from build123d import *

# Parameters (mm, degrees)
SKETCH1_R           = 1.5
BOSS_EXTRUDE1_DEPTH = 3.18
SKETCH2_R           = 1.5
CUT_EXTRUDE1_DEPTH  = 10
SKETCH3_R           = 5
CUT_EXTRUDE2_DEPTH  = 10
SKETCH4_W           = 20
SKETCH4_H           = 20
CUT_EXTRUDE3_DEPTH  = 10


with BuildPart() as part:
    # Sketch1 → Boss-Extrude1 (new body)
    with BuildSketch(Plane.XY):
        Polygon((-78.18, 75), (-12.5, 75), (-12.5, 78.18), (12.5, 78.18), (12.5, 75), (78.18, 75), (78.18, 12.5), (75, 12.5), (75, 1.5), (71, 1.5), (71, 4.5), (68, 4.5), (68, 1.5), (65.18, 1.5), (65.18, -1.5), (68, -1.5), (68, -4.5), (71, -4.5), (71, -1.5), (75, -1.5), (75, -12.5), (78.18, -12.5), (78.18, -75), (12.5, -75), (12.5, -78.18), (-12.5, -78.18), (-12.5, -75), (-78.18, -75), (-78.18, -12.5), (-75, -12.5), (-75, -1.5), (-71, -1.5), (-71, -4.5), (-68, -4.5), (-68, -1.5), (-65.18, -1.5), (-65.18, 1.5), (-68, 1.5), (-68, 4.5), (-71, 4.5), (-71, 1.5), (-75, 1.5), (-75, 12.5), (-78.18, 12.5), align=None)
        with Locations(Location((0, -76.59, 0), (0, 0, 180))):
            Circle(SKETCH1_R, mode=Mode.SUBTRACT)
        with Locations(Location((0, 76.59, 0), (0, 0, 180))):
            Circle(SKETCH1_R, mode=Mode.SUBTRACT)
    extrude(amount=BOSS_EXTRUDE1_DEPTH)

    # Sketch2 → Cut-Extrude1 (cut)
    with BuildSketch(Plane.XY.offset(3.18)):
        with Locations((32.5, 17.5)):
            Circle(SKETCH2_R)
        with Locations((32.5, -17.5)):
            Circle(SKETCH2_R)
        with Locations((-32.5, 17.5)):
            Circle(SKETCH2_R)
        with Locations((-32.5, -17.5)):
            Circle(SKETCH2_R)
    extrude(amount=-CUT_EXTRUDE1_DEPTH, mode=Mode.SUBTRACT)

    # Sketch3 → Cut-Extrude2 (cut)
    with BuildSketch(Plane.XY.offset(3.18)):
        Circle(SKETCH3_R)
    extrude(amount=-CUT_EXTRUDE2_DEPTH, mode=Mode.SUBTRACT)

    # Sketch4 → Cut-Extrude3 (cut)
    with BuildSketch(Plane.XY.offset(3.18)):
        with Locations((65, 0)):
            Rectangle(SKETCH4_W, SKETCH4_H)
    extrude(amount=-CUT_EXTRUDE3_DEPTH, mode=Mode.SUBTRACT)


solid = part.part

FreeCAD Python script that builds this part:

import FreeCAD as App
import Part
import Sketcher

V = App.Vector
Q = App.Units.Quantity

doc = App.newDocument("Part")
body = doc.addObject("PartDesign::Body", "Body")

# Sketch on XY plane
sketch1 = body.newObject("Sketcher::SketchObject", "Sketch")
sketch1.AttachmentSupport = (doc.getObject("XY_Plane"), [""])
sketch1.MapMode = "FlatFace"
sketch1.addGeometry(Part.LineSegment(V(-12.5, 75, 0), V(-78.2, 75, 0)), False)
sketch1.addGeometry(Part.LineSegment(V(-78.2, 75, 0), V(-78.2, 12.5, 0)), False)
sketch1.addGeometry(Part.LineSegment(V(-78.2, 12.5, 0), V(-75, 12.5, 0)), False)
sketch1.addGeometry(Part.LineSegment(V(-75, 12.5, 0), V(-75, 1.5, 0)), False)
sketch1.addGeometry(Part.LineSegment(V(-75, 1.5, 0), V(-71, 1.5, 0)), False)
sketch1.addGeometry(Part.LineSegment(V(-71, 1.5, 0), V(-71, 4.5, 0)), False)
sketch1.addGeometry(Part.LineSegment(V(-71, 4.5, 0), V(-68, 4.5, 0)), False)
sketch1.addGeometry(Part.LineSegment(V(-68, 4.5, 0), V(-68, 1.5, 0)), False)
sketch1.addGeometry(Part.LineSegment(V(-68, 1.5, 0), V(-65.2, 1.5, 0)), False)
sketch1.addGeometry(Part.LineSegment(V(-65.2, 1.5, 0), V(-65.2, -1.5, 0)), False)
sketch1.addGeometry(Part.LineSegment(V(-65.2, -1.5, 0), V(-68, -1.5, 0)), False)
sketch1.addGeometry(Part.LineSegment(V(-68, -1.5, 0), V(-68, -4.5, 0)), False)
sketch1.addGeometry(Part.LineSegment(V(-68, -4.5, 0), V(-71, -4.5, 0)), False)
sketch1.addGeometry(Part.LineSegment(V(-71, -4.5, 0), V(-71, -1.5, 0)), False)
sketch1.addGeometry(Part.LineSegment(V(-71, -1.5, 0), V(-75, -1.5, 0)), False)
sketch1.addGeometry(Part.LineSegment(V(-75, -1.5, 0), V(-75, -12.5, 0)), False)
sketch1.addGeometry(Part.LineSegment(V(-75, -12.5, 0), V(-78.2, -12.5, 0)), False)
sketch1.addGeometry(Part.LineSegment(V(-78.2, -12.5, 0), V(-78.2, -75, 0)), False)
sketch1.addGeometry(Part.LineSegment(V(-78.2, -75, 0), V(-12.5, -75, 0)), False)
sketch1.addGeometry(Part.LineSegment(V(-12.5, -75, 0), V(-12.5, -78.2, 0)), False)
sketch1.addGeometry(Part.LineSegment(V(-12.5, -78.2, 0), V(12.5, -78.2, 0)), False)
sketch1.addGeometry(Part.LineSegment(V(12.5, -78.2, 0), V(12.5, -75, 0)), False)
sketch1.addGeometry(Part.LineSegment(V(12.5, -75, 0), V(78.2, -75, 0)), False)
sketch1.addGeometry(Part.LineSegment(V(78.2, -75, 0), V(78.2, -12.5, 0)), False)
sketch1.addGeometry(Part.LineSegment(V(78.2, -12.5, 0), V(75, -12.5, 0)), False)
sketch1.addGeometry(Part.LineSegment(V(75, -12.5, 0), V(75, -1.5, 0)), False)
sketch1.addGeometry(Part.LineSegment(V(75, -1.5, 0), V(71, -1.5, 0)), False)
sketch1.addGeometry(Part.LineSegment(V(71, -1.5, 0), V(71, -4.5, 0)), False)
sketch1.addGeometry(Part.LineSegment(V(71, -4.5, 0), V(68, -4.5, 0)), False)
sketch1.addGeometry(Part.LineSegment(V(68, -4.5, 0), V(68, -1.5, 0)), False)
sketch1.addGeometry(Part.LineSegment(V(68, -1.5, 0), V(65.2, -1.5, 0)), False)
sketch1.addGeometry(Part.LineSegment(V(65.2, -1.5, 0), V(65.2, 1.5, 0)), False)
sketch1.addGeometry(Part.LineSegment(V(65.2, 1.5, 0), V(68, 1.5, 0)), False)
sketch1.addGeometry(Part.LineSegment(V(68, 1.5, 0), V(68, 4.5, 0)), False)
sketch1.addGeometry(Part.LineSegment(V(68, 4.5, 0), V(71, 4.5, 0)), False)
sketch1.addGeometry(Part.LineSegment(V(71, 4.5, 0), V(71, 1.5, 0)), False)
sketch1.addGeometry(Part.LineSegment(V(71, 1.5, 0), V(75, 1.5, 0)), False)
sketch1.addGeometry(Part.LineSegment(V(75, 1.5, 0), V(75, 12.5, 0)), False)
sketch1.addGeometry(Part.LineSegment(V(75, 12.5, 0), V(78.2, 12.5, 0)), False)
sketch1.addGeometry(Part.LineSegment(V(78.2, 12.5, 0), V(78.2, 75, 0)), False)
sketch1.addGeometry(Part.LineSegment(V(78.2, 75, 0), V(12.5, 75, 0)), False)
sketch1.addGeometry(Part.LineSegment(V(12.5, 75, 0), V(12.5, 78.2, 0)), False)
sketch1.addGeometry(Part.LineSegment(V(12.5, 78.2, 0), V(-12.5, 78.2, 0)), False)
sketch1.addGeometry(Part.LineSegment(V(-12.5, 78.2, 0), V(-12.5, 75, 0)), False)
sketch1.addGeometry(Part.Circle(V(0, -76.6, 0), V(0, 0, 1), 1.5), False)
sketch1.addGeometry(Part.Circle(V(0, 76.6, 0), V(0, 0, 1), 1.5), False)
sketch1.addConstraint(Sketcher.Constraint("Coincident", 0, 2, 1, 1))
sketch1.addConstraint(Sketcher.Constraint("Coincident", 1, 2, 2, 1))
sketch1.addConstraint(Sketcher.Constraint("Coincident", 2, 2, 3, 1))
sketch1.addConstraint(Sketcher.Constraint("Coincident", 3, 2, 4, 1))
sketch1.addConstraint(Sketcher.Constraint("Coincident", 4, 2, 5, 1))
sketch1.addConstraint(Sketcher.Constraint("Coincident", 5, 2, 6, 1))
sketch1.addConstraint(Sketcher.Constraint("Coincident", 6, 2, 7, 1))
sketch1.addConstraint(Sketcher.Constraint("Coincident", 7, 2, 8, 1))
sketch1.addConstraint(Sketcher.Constraint("Coincident", 8, 2, 9, 1))
sketch1.addConstraint(Sketcher.Constraint("Coincident", 9, 2, 10, 1))
sketch1.addConstraint(Sketcher.Constraint("Coincident", 10, 2, 11, 1))
sketch1.addConstraint(Sketcher.Constraint("Coincident", 11, 2, 12, 1))
sketch1.addConstraint(Sketcher.Constraint("Coincident", 12, 2, 13, 1))
sketch1.addConstraint(Sketcher.Constraint("Coincident", 13, 2, 14, 1))
sketch1.addConstraint(Sketcher.Constraint("Coincident", 14, 2, 15, 1))
sketch1.addConstraint(Sketcher.Constraint("Coincident", 15, 2, 16, 1))
sketch1.addConstraint(Sketcher.Constraint("Coincident", 16, 2, 17, 1))
sketch1.addConstraint(Sketcher.Constraint("Coincident", 17, 2, 18, 1))
sketch1.addConstraint(Sketcher.Constraint("Coincident", 18, 2, 19, 1))
sketch1.addConstraint(Sketcher.Constraint("Coincident", 19, 2, 20, 1))
sketch1.addConstraint(Sketcher.Constraint("Coincident", 20, 2, 21, 1))
sketch1.addConstraint(Sketcher.Constraint("Coincident", 21, 2, 22, 1))
sketch1.addConstraint(Sketcher.Constraint("Coincident", 22, 2, 23, 1))
sketch1.addConstraint(Sketcher.Constraint("Coincident", 23, 2, 24, 1))
sketch1.addConstraint(Sketcher.Constraint("Coincident", 24, 2, 25, 1))
sketch1.addConstraint(Sketcher.Constraint("Coincident", 25, 2, 26, 1))
sketch1.addConstraint(Sketcher.Constraint("Coincident", 26, 2, 27, 1))
sketch1.addConstraint(Sketcher.Constraint("Coincident", 27, 2, 28, 1))
sketch1.addConstraint(Sketcher.Constraint("Coincident", 28, 2, 29, 1))
sketch1.addConstraint(Sketcher.Constraint("Coincident", 29, 2, 30, 1))
sketch1.addConstraint(Sketcher.Constraint("Coincident", 30, 2, 31, 1))
sketch1.addConstraint(Sketcher.Constraint("Coincident", 31, 2, 32, 1))
sketch1.addConstraint(Sketcher.Constraint("Coincident", 32, 2, 33, 1))
sketch1.addConstraint(Sketcher.Constraint("Coincident", 33, 2, 34, 1))
sketch1.addConstraint(Sketcher.Constraint("Coincident", 34, 2, 35, 1))
sketch1.addConstraint(Sketcher.Constraint("Coincident", 35, 2, 36, 1))
sketch1.addConstraint(Sketcher.Constraint("Coincident", 36, 2, 37, 1))
sketch1.addConstraint(Sketcher.Constraint("Coincident", 37, 2, 38, 1))
sketch1.addConstraint(Sketcher.Constraint("Coincident", 38, 2, 39, 1))
sketch1.addConstraint(Sketcher.Constraint("Coincident", 39, 2, 40, 1))
sketch1.addConstraint(Sketcher.Constraint("Coincident", 40, 2, 41, 1))
sketch1.addConstraint(Sketcher.Constraint("Coincident", 41, 2, 42, 1))
sketch1.addConstraint(Sketcher.Constraint("Coincident", 42, 2, 43, 1))
sketch1.addConstraint(Sketcher.Constraint("Coincident", 43, 2, 0, 1))
sketch1.addConstraint(Sketcher.Constraint("Horizontal", 0))
sketch1.addConstraint(Sketcher.Constraint("Vertical", 1))
sketch1.addConstraint(Sketcher.Constraint("Horizontal", 2))
sketch1.addConstraint(Sketcher.Constraint("Vertical", 3))
sketch1.addConstraint(Sketcher.Constraint("Horizontal", 4))
sketch1.addConstraint(Sketcher.Constraint("Vertical", 5))
sketch1.addConstraint(Sketcher.Constraint("Horizontal", 6))
sketch1.addConstraint(Sketcher.Constraint("Vertical", 7))
sketch1.addConstraint(Sketcher.Constraint("Horizontal", 8))
sketch1.addConstraint(Sketcher.Constraint("Vertical", 9))
sketch1.addConstraint(Sketcher.Constraint("Horizontal", 10))
sketch1.addConstraint(Sketcher.Constraint("Vertical", 11))
sketch1.addConstraint(Sketcher.Constraint("Horizontal", 12))
sketch1.addConstraint(Sketcher.Constraint("Vertical", 13))
sketch1.addConstraint(Sketcher.Constraint("Horizontal", 14))
sketch1.addConstraint(Sketcher.Constraint("Vertical", 15))
sketch1.addConstraint(Sketcher.Constraint("Horizontal", 16))
sketch1.addConstraint(Sketcher.Constraint("Vertical", 17))
sketch1.addConstraint(Sketcher.Constraint("Horizontal", 18))
sketch1.addConstraint(Sketcher.Constraint("Vertical", 19))
sketch1.addConstraint(Sketcher.Constraint("Horizontal", 20))
sketch1.addConstraint(Sketcher.Constraint("Vertical", 21))
sketch1.addConstraint(Sketcher.Constraint("Horizontal", 22))
sketch1.addConstraint(Sketcher.Constraint("Vertical", 23))
sketch1.addConstraint(Sketcher.Constraint("Horizontal", 24))
sketch1.addConstraint(Sketcher.Constraint("Vertical", 25))
sketch1.addConstraint(Sketcher.Constraint("Horizontal", 26))
sketch1.addConstraint(Sketcher.Constraint("Vertical", 27))
sketch1.addConstraint(Sketcher.Constraint("Horizontal", 28))
sketch1.addConstraint(Sketcher.Constraint("Vertical", 29))
sketch1.addConstraint(Sketcher.Constraint("Horizontal", 30))
sketch1.addConstraint(Sketcher.Constraint("Vertical", 31))
sketch1.addConstraint(Sketcher.Constraint("Horizontal", 32))
sketch1.addConstraint(Sketcher.Constraint("Vertical", 33))
sketch1.addConstraint(Sketcher.Constraint("Horizontal", 34))
sketch1.addConstraint(Sketcher.Constraint("Vertical", 35))
sketch1.addConstraint(Sketcher.Constraint("Horizontal", 36))
sketch1.addConstraint(Sketcher.Constraint("Vertical", 37))
sketch1.addConstraint(Sketcher.Constraint("Horizontal", 38))
sketch1.addConstraint(Sketcher.Constraint("Vertical", 39))
sketch1.addConstraint(Sketcher.Constraint("Horizontal", 40))
sketch1.addConstraint(Sketcher.Constraint("Vertical", 41))
sketch1.addConstraint(Sketcher.Constraint("Horizontal", 42))
sketch1.addConstraint(Sketcher.Constraint("Vertical", 43))
sketch1.addConstraint(Sketcher.Constraint("Equal", 44, 45))
sketch1.addConstraint(Sketcher.Constraint("Symmetric", 44, 3, 45, 3, -1, 1))
sketch1.addConstraint(Sketcher.Constraint("Symmetric", 0, 2, 22, 2, -1, 1))
sketch1.addConstraint(Sketcher.Constraint("Symmetric", 2, 2, 24, 2, -1, 1))
sketch1.addConstraint(Sketcher.Constraint("Symmetric", 4, 2, 26, 2, -1, 1))
sketch1.addConstraint(Sketcher.Constraint("Symmetric", 6, 2, 28, 2, -1, 1))
sketch1.addConstraint(Sketcher.Constraint("Symmetric", 8, 2, 30, 2, -1, 1))
sketch1.addConstraint(Sketcher.Constraint("Symmetric", 10, 2, 32, 2, -1, 1))
sketch1.addConstraint(Sketcher.Constraint("Symmetric", 12, 2, 34, 2, -1, 1))
sketch1.addConstraint(Sketcher.Constraint("Symmetric", 14, 2, 36, 2, -1, 1))
sketch1.addConstraint(Sketcher.Constraint("Symmetric", 16, 2, 38, 2, -1, 1))
sketch1.addConstraint(Sketcher.Constraint("Symmetric", 18, 2, 40, 2, -1, 1))
sketch1.addConstraint(Sketcher.Constraint("Symmetric", 20, 2, 42, 2, -1, 1))
sketch1.addConstraint(Sketcher.Constraint("Symmetric", 18, 2, 21, 2, -2))
sketch1.addConstraint(Sketcher.Constraint("Symmetric", 16, 2, 23, 2, -2))
sketch1.addConstraint(Sketcher.Constraint("Symmetric", 14, 2, 25, 2, -2))
sketch1.addConstraint(Sketcher.Constraint("Symmetric", 12, 2, 27, 2, -2))
sketch1.addConstraint(Sketcher.Constraint("Symmetric", 10, 2, 29, 2, -2))
sketch1.addConstraint(Sketcher.Constraint("PointOnObject", 44, 3, -2))
sketch1.addConstraint(Sketcher.Constraint("Horizontal", 4, 2, 7, 2))
sketch1.addConstraint(Sketcher.Constraint("Equal", 34, 5))
sketch1.addConstraint(Sketcher.Constraint("Equal", 7, 9))
sketch1.addConstraint(Sketcher.Constraint("Equal", 38, 19))
sketch1.addConstraint(Sketcher.Constraint("Diameter", 44, Q("3 mm")))
sketch1.addConstraint(Sketcher.Constraint("DistanceX", 4, 1, 4, 2, Q("4 mm")))
sketch1.addConstraint(Sketcher.Constraint("DistanceX", 6, 1, 6, 2, Q("3 mm")))
sketch1.addConstraint(Sketcher.Constraint("DistanceX", 20, 1, 20, 2, Q("25 mm")))
sketch1.addConstraint(Sketcher.Constraint("DistanceY", 3, 2, 3, 1, Q("11 mm")))
sketch1.addConstraint(Sketcher.Constraint("DistanceY", 1, 2, 1, 1, Q("62.5 mm")))
sketch1.addConstraint(Sketcher.Constraint("DistanceX", 2, 2, -1, 1, Q("75 mm")))
sketch1.addConstraint(Sketcher.Constraint("DistanceX", 0, 2, 0, 1, Q("65.68 mm")))
sketch1.addConstraint(Sketcher.Constraint("DistanceX", 8, 1, 8, 2, Q("2.82 mm")))
sketch1.addConstraint(Sketcher.Constraint("DistanceY", 44, 3, -1, 1, Q("76.59 mm")))
pad1 = body.newObject("PartDesign::Pad", "Pad")
pad1.Profile = sketch1
pad1.Length = 3.18

# Sketch on XY plane
sketch2 = body.newObject("Sketcher::SketchObject", "Sketch001")
sketch2.AttachmentSupport = (doc.getObject("XY_Plane"), [""])
sketch2.MapMode = "FlatFace"
sketch2.AttachmentOffset = App.Placement(V(0, 0, 3.18), App.Rotation())
sketch2.addGeometry(Part.Circle(V(32.5, 17.5, 0), V(0, 0, 1), 1.5), False)
sketch2.addGeometry(Part.Circle(V(32.5, -17.5, 0), V(0, 0, 1), 1.5), False)
sketch2.addGeometry(Part.Circle(V(-32.5, 17.5, 0), V(0, 0, 1), 1.5), False)
sketch2.addGeometry(Part.Circle(V(-32.5, -17.5, 0), V(0, 0, 1), 1.5), False)
sketch2.addConstraint(Sketcher.Constraint("Equal", 0, 1))
sketch2.addConstraint(Sketcher.Constraint("Equal", 1, 2))
sketch2.addConstraint(Sketcher.Constraint("Equal", 2, 3))
sketch2.addConstraint(Sketcher.Constraint("Symmetric", 1, 3, 2, 3, -1, 1))
sketch2.addConstraint(Sketcher.Constraint("Symmetric", 0, 3, 3, 3, -1, 1))
sketch2.addConstraint(Sketcher.Constraint("Symmetric", 0, 3, 2, 3, -2))
sketch2.addConstraint(Sketcher.Constraint("Diameter", 0, Q("3 mm")))
sketch2.addConstraint(Sketcher.Constraint("DistanceY", 1, 3, 0, 3, Q("35 mm")))
sketch2.addConstraint(Sketcher.Constraint("DistanceX", 2, 3, 0, 3, Q("65 mm")))
pocket1 = body.newObject("PartDesign::Pocket", "Pocket")
pocket1.Profile = sketch2
pocket1.Length = 10

# Sketch on XY plane
sketch3 = body.newObject("Sketcher::SketchObject", "Sketch002")
sketch3.AttachmentSupport = (doc.getObject("XY_Plane"), [""])
sketch3.MapMode = "FlatFace"
sketch3.AttachmentOffset = App.Placement(V(0, 0, 3.18), App.Rotation())
sketch3.addGeometry(Part.Circle(V(0, 0, 0), V(0, 0, 1), 5), False)
sketch3.addConstraint(Sketcher.Constraint("Coincident", 0, 3, -1, 1))
sketch3.addConstraint(Sketcher.Constraint("Diameter", 0, Q("10 mm")))
pocket2 = body.newObject("PartDesign::Pocket", "Pocket001")
pocket2.Profile = sketch3
pocket2.Length = 10

# Sketch on XY plane
sketch4 = body.newObject("Sketcher::SketchObject", "Sketch003")
sketch4.AttachmentSupport = (doc.getObject("XY_Plane"), [""])
sketch4.MapMode = "FlatFace"
sketch4.AttachmentOffset = App.Placement(V(0, 0, 3.18), App.Rotation())
sketch4.addGeometry(Part.LineSegment(V(55, 10, 0), V(55, -10, 0)), False)
sketch4.addGeometry(Part.LineSegment(V(55, -10, 0), V(75, -10, 0)), False)
sketch4.addGeometry(Part.LineSegment(V(75, -10, 0), V(75, 10, 0)), False)
sketch4.addGeometry(Part.LineSegment(V(75, 10, 0), V(55, 10, 0)), False)
sketch4.addConstraint(Sketcher.Constraint("Coincident", 0, 2, 1, 1))
sketch4.addConstraint(Sketcher.Constraint("Coincident", 1, 2, 2, 1))
sketch4.addConstraint(Sketcher.Constraint("Coincident", 2, 2, 3, 1))
sketch4.addConstraint(Sketcher.Constraint("Coincident", 3, 2, 0, 1))
sketch4.addConstraint(Sketcher.Constraint("Vertical", 0))
sketch4.addConstraint(Sketcher.Constraint("Horizontal", 1))
sketch4.addConstraint(Sketcher.Constraint("Vertical", 2))
sketch4.addConstraint(Sketcher.Constraint("Horizontal", 3))
sketch4.addConstraint(Sketcher.Constraint("Equal", 3, 0))
sketch4.addConstraint(Sketcher.Constraint("DistanceX", 1, 1, 1, 2, Q("20 mm")))
sketch4.addConstraint(Sketcher.Constraint("DistanceX", -1, 1, 0, 2, Q("55 mm")))
sketch4.addConstraint(Sketcher.Constraint("DistanceY", 0, 2, -1, 1, Q("10 mm")))
pocket3 = body.newObject("PartDesign::Pocket", "Pocket002")
pocket3.Profile = sketch4
pocket3.Length = 10

doc.recompute()
